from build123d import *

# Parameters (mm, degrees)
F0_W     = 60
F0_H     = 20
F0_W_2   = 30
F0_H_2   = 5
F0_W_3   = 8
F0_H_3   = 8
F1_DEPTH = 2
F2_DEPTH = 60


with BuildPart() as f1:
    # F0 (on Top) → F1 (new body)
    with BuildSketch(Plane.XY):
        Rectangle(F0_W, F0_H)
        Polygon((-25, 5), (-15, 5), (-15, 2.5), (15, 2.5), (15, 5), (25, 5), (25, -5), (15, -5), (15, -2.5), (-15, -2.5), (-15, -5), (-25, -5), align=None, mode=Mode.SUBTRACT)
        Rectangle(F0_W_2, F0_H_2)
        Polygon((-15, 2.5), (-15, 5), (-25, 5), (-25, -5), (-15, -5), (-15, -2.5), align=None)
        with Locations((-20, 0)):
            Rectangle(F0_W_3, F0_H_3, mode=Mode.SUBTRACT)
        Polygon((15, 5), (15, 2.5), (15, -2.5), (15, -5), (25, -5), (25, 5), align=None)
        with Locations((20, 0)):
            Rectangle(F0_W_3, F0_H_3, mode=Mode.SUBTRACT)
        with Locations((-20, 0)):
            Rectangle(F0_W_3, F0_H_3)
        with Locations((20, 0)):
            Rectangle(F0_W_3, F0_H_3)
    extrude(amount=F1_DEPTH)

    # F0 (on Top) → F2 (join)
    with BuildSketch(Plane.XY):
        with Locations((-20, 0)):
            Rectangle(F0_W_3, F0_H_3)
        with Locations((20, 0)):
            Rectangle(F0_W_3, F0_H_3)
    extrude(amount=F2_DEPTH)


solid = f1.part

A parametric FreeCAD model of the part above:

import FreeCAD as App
import Part
import Sketcher

V = App.Vector
Q = App.Units.Quantity


def add_polygon(sketch, points):
    """Adds a closed chain of lines whose ends are joined by coincident constraints."""
    first, n = sketch.GeometryCount, len(points)
    for a, b in zip(points, points[1:] + points[:1]):
        sketch.addGeometry(Part.LineSegment(App.Vector(*a, 0), App.Vector(*b, 0)), False)
    for i in range(n):
        sketch.addConstraint(Sketcher.Constraint("Coincident", first + i, 2, first + (i + 1) % n, 1))

doc = App.newDocument("Part")
params = doc.addObject("Spreadsheet::Sheet", "Params")
for row, (alias, value) in enumerate([
    ("sketch1_width", "60 mm"),
    ("sketch1_height", "20 mm"),
    ("pad1_length", "2 mm"),
    ("sketch2_width", "8 mm"),
    ("pad2_length", "60 mm"),
], start=1):
    params.set(f"A{row}", alias)
    params.set(f"B{row}", "=" + value)
    params.setAlias(f"B{row}", alias)

body = doc.addObject("PartDesign::Body", "Body")

sketch1 = body.newObject("Sketcher::SketchObject", "Sketch")
sketch1.AttachmentSupport = (doc.getObject("XY_Plane"), [""])
sketch1.MapMode = "FlatFace"
add_polygon(sketch1, [(-30, 10), (-30, -10), (30, -10), (30, 10)])
sketch1.addConstraint([
    Sketcher.Constraint("Vertical", 0),
    Sketcher.Constraint("Horizontal", 1),
    Sketcher.Constraint("Vertical", 2),
    Sketcher.Constraint("Horizontal", 3),
    Sketcher.Constraint("Symmetric", 0, 2, 2, 2, -1, 1),
    Sketcher.Constraint("DistanceX", 1, 1, 1, 2, Q("60 mm")),
    Sketcher.Constraint("DistanceY", 0, 2, 0, 1, Q("20 mm")),
])
sketch1.setExpression("Constraints[9]", "Params.sketch1_width")
sketch1.setExpression("Constraints[10]", "Params.sketch1_height")
pad1 = body.newObject("PartDesign::Pad", "Pad")
pad1.Profile = sketch1
pad1.setExpression("Length", "Params.pad1_length")

sketch2 = body.newObject("Sketcher::SketchObject", "Sketch001")
sketch2.AttachmentSupport = (doc.getObject("XY_Plane"), [""])
sketch2.MapMode = "FlatFace"
add_polygon(sketch2, [(-24, 4), (-24, -4), (-16, -4), (-16, 4)])
add_polygon(sketch2, [(16, 4), (16, -4), (24, -4), (24, 4)])
sketch2.addConstraint([
    Sketcher.Constraint("Vertical", 0),
    Sketcher.Constraint("Horizontal", 1),
    Sketcher.Constraint("Vertical", 2),
    Sketcher.Constraint("Horizontal", 3),
    Sketcher.Constraint("Vertical", 4),
    Sketcher.Constraint("Horizontal", 5),
    Sketcher.Constraint("Vertical", 6),
    Sketcher.Constraint("Horizontal", 7),
    Sketcher.Constraint("Symmetric", 2, 2, 4, 2, -1, 1),
    Sketcher.Constraint("Symmetric", 0, 2, 6, 2, -1, 1),
    Sketcher.Constraint("Horizontal", 1, 2, 4, 2),
    Sketcher.Constraint("Equal", 7, 0),
    Sketcher.Constraint("DistanceX", 1, 1, 1, 2, Q("8 mm")),
    Sketcher.Constraint("DistanceX", 0, 2, -1, 1, Q("24 mm")),
])
sketch2.setExpression("Constraints[20]", "Params.sketch2_width")
pad2 = body.newObject("PartDesign::Pad", "Pad001")
pad2.Profile = sketch2
pad2.setExpression("Length", "Params.pad2_length")

doc.recompute()
